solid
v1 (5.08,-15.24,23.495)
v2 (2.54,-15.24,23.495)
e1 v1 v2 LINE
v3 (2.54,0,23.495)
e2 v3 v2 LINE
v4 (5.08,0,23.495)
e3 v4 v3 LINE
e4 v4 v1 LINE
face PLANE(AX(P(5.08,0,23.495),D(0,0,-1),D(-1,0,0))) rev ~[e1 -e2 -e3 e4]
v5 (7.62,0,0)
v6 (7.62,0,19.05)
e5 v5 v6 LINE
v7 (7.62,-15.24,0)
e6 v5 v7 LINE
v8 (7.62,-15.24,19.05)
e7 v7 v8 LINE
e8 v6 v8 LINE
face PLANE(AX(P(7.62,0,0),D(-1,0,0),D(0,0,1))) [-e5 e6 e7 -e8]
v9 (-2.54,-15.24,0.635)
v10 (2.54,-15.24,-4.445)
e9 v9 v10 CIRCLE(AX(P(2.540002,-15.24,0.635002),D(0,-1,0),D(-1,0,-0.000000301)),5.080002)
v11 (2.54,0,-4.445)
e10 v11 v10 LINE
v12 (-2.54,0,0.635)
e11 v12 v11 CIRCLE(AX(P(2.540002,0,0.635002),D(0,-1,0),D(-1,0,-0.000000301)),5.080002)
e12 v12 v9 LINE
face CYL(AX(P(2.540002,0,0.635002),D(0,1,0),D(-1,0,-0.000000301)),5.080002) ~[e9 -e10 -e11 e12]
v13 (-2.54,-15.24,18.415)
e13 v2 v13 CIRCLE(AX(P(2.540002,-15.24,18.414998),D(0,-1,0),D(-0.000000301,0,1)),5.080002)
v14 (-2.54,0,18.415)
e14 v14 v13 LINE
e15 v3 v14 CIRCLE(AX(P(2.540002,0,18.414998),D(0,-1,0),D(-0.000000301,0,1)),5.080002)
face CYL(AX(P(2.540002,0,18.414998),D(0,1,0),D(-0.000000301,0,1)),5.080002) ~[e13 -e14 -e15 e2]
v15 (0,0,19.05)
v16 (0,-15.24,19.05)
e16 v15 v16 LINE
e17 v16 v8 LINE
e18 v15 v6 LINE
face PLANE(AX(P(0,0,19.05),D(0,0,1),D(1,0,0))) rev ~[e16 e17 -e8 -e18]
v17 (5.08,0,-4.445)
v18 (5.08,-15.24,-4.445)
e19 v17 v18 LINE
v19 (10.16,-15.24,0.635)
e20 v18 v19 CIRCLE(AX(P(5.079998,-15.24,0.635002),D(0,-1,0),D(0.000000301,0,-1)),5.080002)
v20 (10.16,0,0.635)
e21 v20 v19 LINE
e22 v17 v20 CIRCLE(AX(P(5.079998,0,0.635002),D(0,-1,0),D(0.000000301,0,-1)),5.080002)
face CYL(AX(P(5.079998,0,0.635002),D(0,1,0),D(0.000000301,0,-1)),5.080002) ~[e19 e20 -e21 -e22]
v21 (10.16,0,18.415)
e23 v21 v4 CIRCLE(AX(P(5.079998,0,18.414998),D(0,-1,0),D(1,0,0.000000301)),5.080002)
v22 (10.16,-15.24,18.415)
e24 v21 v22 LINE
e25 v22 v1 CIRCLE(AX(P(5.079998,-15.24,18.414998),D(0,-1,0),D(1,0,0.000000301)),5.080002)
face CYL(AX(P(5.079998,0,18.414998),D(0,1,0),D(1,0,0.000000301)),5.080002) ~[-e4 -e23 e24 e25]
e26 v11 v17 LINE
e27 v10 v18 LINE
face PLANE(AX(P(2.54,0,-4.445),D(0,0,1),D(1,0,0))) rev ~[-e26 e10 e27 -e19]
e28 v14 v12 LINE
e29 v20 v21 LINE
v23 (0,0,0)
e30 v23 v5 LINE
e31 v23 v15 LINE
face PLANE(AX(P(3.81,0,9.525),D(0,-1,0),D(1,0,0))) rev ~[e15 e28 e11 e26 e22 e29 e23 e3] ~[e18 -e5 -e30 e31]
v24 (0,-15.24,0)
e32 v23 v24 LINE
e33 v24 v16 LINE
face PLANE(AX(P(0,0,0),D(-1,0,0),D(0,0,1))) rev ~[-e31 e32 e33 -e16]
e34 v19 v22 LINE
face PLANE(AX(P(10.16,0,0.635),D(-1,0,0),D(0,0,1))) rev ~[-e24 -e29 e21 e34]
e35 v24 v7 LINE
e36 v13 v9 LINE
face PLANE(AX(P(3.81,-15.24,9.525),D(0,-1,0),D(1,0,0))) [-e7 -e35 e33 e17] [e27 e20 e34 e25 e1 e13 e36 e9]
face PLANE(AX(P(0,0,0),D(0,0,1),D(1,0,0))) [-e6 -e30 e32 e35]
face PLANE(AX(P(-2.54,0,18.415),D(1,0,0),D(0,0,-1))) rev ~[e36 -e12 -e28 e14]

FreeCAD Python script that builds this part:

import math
import FreeCAD as App
import Part
import Sketcher
from FreeCAD import Vector
Q = App.Units.Quantity


def add_polygon(sketch, points):
    """Adds a closed chain of lines whose ends are joined by coincident constraints."""
    first, n = sketch.GeometryCount, len(points)
    for a, b in zip(points, points[1:] + points[:1]):
        sketch.addGeometry(Part.LineSegment(App.Vector(*a, 0), App.Vector(*b, 0)), False)
    for i in range(n):
        sketch.addConstraint(Sketcher.Constraint("Coincident", first + i, 2, first + (i + 1) % n, 1))

doc = App.newDocument("Part")
params = doc.addObject("Spreadsheet::Sheet", "Params")
for row, (alias, value) in enumerate([
    ("sketch1_radius", "0.2000001 in"),
    ("sketch1_width", "0.1 in"),
    ("sketch1_width2", "0.3 in"),
    ("sketch1_height", "0.7 in"),
    ("sketch1_height2", "0.75 in"),
    ("pad1_length", "0.6 in"),
], start=1):
    params.set(f"A{row}", alias)
    params.set(f"B{row}", "=" + value)
    params.setAlias(f"B{row}", alias)

body = doc.addObject("PartDesign::Body", "Body")

sketch1 = body.newObject("Sketcher::SketchObject", "Sketch")
sketch1.AttachmentSupport = (doc.getObject("XZ_Plane"), [""])
sketch1.MapMode = "FlatFace"
sketch1.addGeometry(Part.ArcOfCircle(Part.Circle(Vector(5.1, 18.4, 0), Vector(0, 0, 1), 5.1), math.radians(0), math.radians(90)), False)
sketch1.addGeometry(Part.LineSegment(Vector(5.1, 23.5, 0), Vector(2.5, 23.5, 0)), False)
sketch1.addGeometry(Part.ArcOfCircle(Part.Circle(Vector(2.5, 18.4, 0), Vector(0, 0, 1), 5.1), math.radians(90), math.radians(180)), False)
sketch1.addGeometry(Part.LineSegment(Vector(-2.5, 18.4, 0), Vector(-2.5, 0.6, 0)), False)
sketch1.addGeometry(Part.ArcOfCircle(Part.Circle(Vector(2.5, 0.6, 0), Vector(0, 0, 1), 5.1), math.radians(-180), math.radians(-90)), False)
sketch1.addGeometry(Part.LineSegment(Vector(2.5, -4.4, 0), Vector(5.1, -4.4, 0)), False)
sketch1.addGeometry(Part.ArcOfCircle(Part.Circle(Vector(5.1, 0.6, 0), Vector(0, 0, 1), 5.1), math.radians(-90), math.radians(0)), False)
sketch1.addGeometry(Part.LineSegment(Vector(10.2, 0.6, 0), Vector(10.2, 18.4, 0)), False)
add_polygon(sketch1, [(7.6, 0), (0, 0), (0, 19.1), (7.6, 19.1)])
sketch1.addConstraint([
    Sketcher.Constraint("Tangent", 0, 2, 1, 1),
    Sketcher.Constraint("Tangent", 1, 2, 2, 1),
    Sketcher.Constraint("Tangent", 2, 2, 3, 1),
    Sketcher.Constraint("Tangent", 3, 2, 4, 1),
    Sketcher.Constraint("Tangent", 4, 2, 5, 1),
    Sketcher.Constraint("Tangent", 5, 2, 6, 1),
    Sketcher.Constraint("Tangent", 6, 2, 7, 1),
    Sketcher.Constraint("Tangent", 7, 2, 0, 1),
    Sketcher.Constraint("Horizontal", 1),
    Sketcher.Constraint("Vertical", 3),
    Sketcher.Constraint("Horizontal", 5),
    Sketcher.Constraint("Vertical", 7),
    Sketcher.Constraint("Horizontal", 8),
    Sketcher.Constraint("Vertical", 9),
    Sketcher.Constraint("Horizontal", 10),
    Sketcher.Constraint("Vertical", 11),
    Sketcher.Constraint("Coincident", 8, 2, -1, 1),
    Sketcher.Constraint("Equal", 0, 2),
    Sketcher.Constraint("Equal", 2, 4),
    Sketcher.Constraint("Equal", 4, 6),
    Sketcher.Constraint("Radius", 0, Q("0.2000001 in")),
    Sketcher.Constraint("DistanceX", 1, 2, 1, 1, Q("0.1 in")),
    Sketcher.Constraint("DistanceX", 8, 2, 8, 1, Q("0.3 in")),
    Sketcher.Constraint("DistanceY", 3, 2, 3, 1, Q("0.7 in")),
    Sketcher.Constraint("DistanceY", 9, 1, 9, 2, Q("0.75 in")),
    Sketcher.Constraint("DistanceX", -1, 1, 0, 3, Q("0.1999999 in")),
    Sketcher.Constraint("DistanceY", -1, 1, 0, 3, Q("0.7249999 in")),
])
sketch1.setExpression("Constraints[24]", "Params.sketch1_radius")
sketch1.setExpression("Constraints[25]", "Params.sketch1_width")
sketch1.setExpression("Constraints[26]", "Params.sketch1_width2")
sketch1.setExpression("Constraints[27]", "Params.sketch1_height")
sketch1.setExpression("Constraints[28]", "Params.sketch1_height2")
pad1 = body.newObject("PartDesign::Pad", "Pad")
pad1.Profile = sketch1
pad1.setExpression("Length", "Params.pad1_length")

doc.recompute()
